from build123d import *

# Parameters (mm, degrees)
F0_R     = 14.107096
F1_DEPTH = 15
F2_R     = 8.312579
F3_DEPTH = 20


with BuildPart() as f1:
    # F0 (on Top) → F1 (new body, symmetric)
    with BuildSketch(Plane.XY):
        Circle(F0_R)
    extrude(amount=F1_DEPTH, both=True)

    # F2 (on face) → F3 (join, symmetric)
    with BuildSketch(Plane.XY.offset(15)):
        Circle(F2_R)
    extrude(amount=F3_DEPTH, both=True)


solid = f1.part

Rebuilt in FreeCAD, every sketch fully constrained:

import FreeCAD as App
import Part
import Sketcher
Q = App.Units.Quantity

doc = App.newDocument("Part")
body = doc.addObject("PartDesign::Body", "Body")

# Sketch on XY plane
sketch1 = body.newObject("Sketcher::SketchObject", "Sketch")
sketch1.AttachmentSupport = (doc.getObject("XY_Plane"), [""])
sketch1.MapMode = "FlatFace"
sketch1.addGeometry(Part.Circle(App.Vector(0, 0, 0), App.Vector(0, 0, 1), 14), False)
sketch1.addConstraint([
    Sketcher.Constraint("Coincident", 0, 3, -1, 1),
    Sketcher.Constraint("Diameter", 0, Q("28.214192 mm")),
])
pad1 = body.newObject("PartDesign::Pad", "Pad")
pad1.Profile = sketch1
pad1.Length = 30
pad1.Midplane = True

# Sketch on XY plane
sketch2 = body.newObject("Sketcher::SketchObject", "Sketch001")
sketch2.AttachmentSupport = (doc.getObject("XY_Plane"), [""])
sketch2.MapMode = "FlatFace"
sketch2.AttachmentOffset = App.Placement(App.Vector(0, 0, 15), App.Rotation())
sketch2.addGeometry(Part.Circle(App.Vector(0, 0, 0), App.Vector(0, 0, 1), 8), False)
sketch2.addConstraint([
    Sketcher.Constraint("Coincident", 0, 3, -1, 1),
    Sketcher.Constraint("Diameter", 0, Q("16.625158 mm")),
])
pad2 = body.newObject("PartDesign::Pad", "Pad001")
pad2.Profile = sketch2
pad2.Length = 40
pad2.Midplane = True

doc.recompute()
